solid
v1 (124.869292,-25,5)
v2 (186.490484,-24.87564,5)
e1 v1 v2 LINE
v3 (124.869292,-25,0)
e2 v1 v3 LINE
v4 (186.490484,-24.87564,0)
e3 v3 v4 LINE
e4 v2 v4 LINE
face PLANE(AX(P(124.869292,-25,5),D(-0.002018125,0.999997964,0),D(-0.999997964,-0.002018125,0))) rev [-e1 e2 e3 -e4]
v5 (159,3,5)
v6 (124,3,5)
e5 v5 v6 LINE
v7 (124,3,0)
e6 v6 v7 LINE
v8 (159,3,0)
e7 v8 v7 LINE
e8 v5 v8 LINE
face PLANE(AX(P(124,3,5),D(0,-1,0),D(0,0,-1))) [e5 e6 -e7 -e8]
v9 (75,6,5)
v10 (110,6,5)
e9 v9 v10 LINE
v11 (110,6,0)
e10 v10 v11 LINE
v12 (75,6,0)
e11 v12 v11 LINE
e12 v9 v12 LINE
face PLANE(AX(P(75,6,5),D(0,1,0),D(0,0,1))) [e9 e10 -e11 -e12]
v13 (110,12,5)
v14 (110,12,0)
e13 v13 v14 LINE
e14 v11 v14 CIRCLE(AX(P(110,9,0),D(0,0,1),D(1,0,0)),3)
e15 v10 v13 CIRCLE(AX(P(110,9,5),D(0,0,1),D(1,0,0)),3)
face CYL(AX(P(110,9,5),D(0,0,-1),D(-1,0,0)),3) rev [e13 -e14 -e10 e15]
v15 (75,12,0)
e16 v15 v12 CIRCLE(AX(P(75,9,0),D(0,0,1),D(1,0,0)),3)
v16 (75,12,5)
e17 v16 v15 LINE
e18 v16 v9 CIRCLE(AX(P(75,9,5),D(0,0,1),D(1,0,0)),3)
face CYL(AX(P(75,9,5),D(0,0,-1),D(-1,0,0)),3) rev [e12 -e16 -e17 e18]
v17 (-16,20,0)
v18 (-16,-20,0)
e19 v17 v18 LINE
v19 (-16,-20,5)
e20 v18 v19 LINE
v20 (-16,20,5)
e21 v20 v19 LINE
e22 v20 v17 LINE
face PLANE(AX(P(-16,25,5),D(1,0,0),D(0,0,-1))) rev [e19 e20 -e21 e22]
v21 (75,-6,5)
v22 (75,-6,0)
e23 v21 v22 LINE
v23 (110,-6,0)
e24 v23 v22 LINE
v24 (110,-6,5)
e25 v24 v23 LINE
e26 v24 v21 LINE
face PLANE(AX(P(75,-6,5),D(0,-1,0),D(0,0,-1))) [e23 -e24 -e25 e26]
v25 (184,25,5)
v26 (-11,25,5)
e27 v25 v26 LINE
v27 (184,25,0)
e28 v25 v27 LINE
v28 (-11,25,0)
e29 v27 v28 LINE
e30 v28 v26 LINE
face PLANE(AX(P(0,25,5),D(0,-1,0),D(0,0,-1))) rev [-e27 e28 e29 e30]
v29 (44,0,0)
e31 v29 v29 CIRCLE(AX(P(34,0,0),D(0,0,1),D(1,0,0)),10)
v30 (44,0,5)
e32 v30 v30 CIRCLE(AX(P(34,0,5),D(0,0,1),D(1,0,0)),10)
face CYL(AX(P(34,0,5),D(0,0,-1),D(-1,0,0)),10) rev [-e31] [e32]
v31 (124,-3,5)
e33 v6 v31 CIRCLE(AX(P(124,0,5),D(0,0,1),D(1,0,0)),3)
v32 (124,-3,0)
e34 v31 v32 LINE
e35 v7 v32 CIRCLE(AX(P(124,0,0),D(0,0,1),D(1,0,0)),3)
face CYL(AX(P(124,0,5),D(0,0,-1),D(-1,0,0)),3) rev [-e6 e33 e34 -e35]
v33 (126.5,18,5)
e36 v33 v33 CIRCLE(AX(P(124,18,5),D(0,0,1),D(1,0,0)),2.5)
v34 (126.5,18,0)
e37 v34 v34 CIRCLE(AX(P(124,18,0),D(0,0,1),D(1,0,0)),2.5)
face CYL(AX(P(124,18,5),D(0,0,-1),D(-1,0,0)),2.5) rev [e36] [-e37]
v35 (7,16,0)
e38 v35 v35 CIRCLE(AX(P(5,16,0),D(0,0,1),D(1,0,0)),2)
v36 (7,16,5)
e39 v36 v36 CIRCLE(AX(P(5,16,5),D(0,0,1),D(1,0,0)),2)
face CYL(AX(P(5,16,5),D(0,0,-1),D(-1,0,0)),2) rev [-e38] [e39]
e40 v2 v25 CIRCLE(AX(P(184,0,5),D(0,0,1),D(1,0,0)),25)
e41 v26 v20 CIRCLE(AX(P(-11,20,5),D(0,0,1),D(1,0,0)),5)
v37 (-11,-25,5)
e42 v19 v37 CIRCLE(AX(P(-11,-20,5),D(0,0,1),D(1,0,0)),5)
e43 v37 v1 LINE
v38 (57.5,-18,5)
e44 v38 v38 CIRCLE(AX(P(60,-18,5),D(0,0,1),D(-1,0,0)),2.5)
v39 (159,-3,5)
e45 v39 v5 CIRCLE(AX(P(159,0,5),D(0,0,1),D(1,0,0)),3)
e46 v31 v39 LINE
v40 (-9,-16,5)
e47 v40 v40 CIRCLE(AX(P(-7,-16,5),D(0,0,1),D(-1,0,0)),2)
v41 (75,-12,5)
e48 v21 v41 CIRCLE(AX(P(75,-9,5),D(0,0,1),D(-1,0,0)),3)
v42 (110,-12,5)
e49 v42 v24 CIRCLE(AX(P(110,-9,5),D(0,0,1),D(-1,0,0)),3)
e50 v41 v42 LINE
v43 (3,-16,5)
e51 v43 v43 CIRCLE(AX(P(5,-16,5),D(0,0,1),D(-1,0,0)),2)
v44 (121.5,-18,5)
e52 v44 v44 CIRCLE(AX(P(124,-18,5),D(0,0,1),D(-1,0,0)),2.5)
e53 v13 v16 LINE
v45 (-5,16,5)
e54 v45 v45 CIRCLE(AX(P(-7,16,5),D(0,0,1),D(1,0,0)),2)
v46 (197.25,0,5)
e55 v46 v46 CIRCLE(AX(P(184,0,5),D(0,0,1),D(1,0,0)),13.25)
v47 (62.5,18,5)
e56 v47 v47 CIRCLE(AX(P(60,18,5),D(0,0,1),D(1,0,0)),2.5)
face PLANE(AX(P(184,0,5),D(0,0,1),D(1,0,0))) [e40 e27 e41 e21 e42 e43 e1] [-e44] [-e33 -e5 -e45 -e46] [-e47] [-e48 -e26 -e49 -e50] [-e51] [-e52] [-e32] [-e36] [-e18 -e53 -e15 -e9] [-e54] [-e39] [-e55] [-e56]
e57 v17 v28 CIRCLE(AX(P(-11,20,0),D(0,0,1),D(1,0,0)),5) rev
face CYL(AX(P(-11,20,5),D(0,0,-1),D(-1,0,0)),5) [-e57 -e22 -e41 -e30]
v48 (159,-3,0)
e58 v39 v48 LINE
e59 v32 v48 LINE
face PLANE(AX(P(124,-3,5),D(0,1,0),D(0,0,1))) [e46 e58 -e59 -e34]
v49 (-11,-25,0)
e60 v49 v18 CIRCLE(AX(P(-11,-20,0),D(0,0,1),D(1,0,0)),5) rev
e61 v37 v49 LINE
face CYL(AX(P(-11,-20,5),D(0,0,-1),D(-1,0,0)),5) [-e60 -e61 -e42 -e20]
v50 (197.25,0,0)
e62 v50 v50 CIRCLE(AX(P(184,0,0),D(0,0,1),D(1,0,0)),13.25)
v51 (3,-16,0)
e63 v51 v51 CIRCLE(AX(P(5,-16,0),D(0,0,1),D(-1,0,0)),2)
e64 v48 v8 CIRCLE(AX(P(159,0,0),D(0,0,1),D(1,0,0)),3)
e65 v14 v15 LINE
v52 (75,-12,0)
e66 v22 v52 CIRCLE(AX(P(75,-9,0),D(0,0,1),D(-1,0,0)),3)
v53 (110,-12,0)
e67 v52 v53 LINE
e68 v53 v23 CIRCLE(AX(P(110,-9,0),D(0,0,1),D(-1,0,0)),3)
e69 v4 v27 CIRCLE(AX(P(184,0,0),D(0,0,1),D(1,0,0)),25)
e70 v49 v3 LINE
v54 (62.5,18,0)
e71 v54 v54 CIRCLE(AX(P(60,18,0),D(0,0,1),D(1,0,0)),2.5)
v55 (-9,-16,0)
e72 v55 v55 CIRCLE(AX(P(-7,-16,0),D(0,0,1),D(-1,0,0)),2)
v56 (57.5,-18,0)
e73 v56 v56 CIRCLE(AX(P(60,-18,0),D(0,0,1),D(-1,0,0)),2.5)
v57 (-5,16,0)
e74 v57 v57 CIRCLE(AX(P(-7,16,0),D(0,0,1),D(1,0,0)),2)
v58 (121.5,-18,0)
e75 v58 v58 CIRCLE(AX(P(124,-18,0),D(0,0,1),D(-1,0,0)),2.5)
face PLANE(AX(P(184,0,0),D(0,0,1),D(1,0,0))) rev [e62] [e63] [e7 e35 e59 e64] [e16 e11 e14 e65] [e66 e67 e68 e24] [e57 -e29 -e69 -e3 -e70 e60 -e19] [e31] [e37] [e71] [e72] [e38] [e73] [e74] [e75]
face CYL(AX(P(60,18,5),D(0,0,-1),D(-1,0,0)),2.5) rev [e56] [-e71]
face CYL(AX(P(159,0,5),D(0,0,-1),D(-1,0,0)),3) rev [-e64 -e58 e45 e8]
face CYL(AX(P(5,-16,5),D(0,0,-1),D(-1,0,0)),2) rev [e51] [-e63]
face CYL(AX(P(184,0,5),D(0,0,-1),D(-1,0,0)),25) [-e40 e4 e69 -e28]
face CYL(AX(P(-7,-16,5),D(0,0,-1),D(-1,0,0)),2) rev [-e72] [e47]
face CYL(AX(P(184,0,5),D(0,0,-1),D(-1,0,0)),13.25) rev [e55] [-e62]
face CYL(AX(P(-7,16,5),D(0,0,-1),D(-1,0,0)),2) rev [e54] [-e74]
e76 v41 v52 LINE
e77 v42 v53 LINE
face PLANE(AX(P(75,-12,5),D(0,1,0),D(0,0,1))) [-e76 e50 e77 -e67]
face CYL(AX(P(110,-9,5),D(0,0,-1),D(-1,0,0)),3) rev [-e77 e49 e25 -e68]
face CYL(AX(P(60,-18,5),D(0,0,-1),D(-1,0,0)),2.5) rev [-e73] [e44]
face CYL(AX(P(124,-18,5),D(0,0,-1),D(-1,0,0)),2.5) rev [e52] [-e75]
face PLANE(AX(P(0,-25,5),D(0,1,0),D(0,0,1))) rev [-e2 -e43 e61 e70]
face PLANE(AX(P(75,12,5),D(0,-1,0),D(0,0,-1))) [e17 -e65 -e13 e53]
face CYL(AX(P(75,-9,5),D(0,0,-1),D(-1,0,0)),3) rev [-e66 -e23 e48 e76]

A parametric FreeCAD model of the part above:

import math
import FreeCAD as App
import Part
import Sketcher

V = App.Vector
Q = App.Units.Quantity


def edges_at(feature, points):
    """Names of the edges that pass closest to the given points."""
    edges = feature.Shape.Edges
    near = lambda p: min(range(len(edges)), key=lambda i: edges[i].distToShape(Part.Vertex(*p))[0])
    return sorted({f"Edge{near(p) + 1}" for p in points})

doc = App.newDocument("Part")
params = doc.addObject("Spreadsheet::Sheet", "Params")
for row, (alias, value) in enumerate([
    ("sketch1_diameter", "5 mm"),
    ("sketch1_diameter2", "4 mm"),
    ("sketch1_diameter3", "20 mm"),
    ("sketch1_radius", "25 mm"),
    ("sketch1_radius2", "3 mm"),
    ("pad1_length", "5 mm"),
    ("fillet_radius", "5 mm"),
], start=1):
    params.set(f"A{row}", alias)
    params.set(f"B{row}", "=" + value)
    params.setAlias(f"B{row}", alias)

body = doc.addObject("PartDesign::Body", "Body")

sketch1 = doc.addObject("Sketcher::SketchObject", "Sketch")
body.addObject(sketch1)
sketch1.AttachmentSupport = (doc.XY_Plane, [""])
sketch1.MapMode = "FlatFace"
sketch1.addGeometry([
    Part.ArcOfCircle(Part.Circle(V(184, 0, 0), V(0, 0, 1), 25), math.radians(-84), math.radians(90)),
    Part.LineSegment(V(184, 25, 0), V(-16, 25, 0)),
    Part.LineSegment(V(-16, 25, 0), V(-16, -25, 0)),
    Part.LineSegment(V(-16, -25, 0), V(124.9, -25, 0)),
    Part.LineSegment(V(124.9, -25, 0), V(186.5, -24.9, 0)),
    Part.Circle(V(124, -18, 0), V(0, 0, 1), 2.5),
    Part.Circle(V(60, -18, 0), V(0, 0, 1), 2.5),
    Part.Circle(V(5, -16, 0), V(0, 0, 1), 2),
    Part.Circle(V(-7, -16, 0), V(0, 0, 1), 2),
    Part.ArcOfCircle(Part.Circle(V(75, -9, 0), V(0, 0, 1), 3), math.radians(90), math.radians(270)),
    Part.LineSegment(V(75, -6, 0), V(110, -6, 0)),
    Part.ArcOfCircle(Part.Circle(V(110, -9, 0), V(0, 0, 1), 3), math.radians(-90), math.radians(90)),
    Part.LineSegment(V(110, -12, 0), V(75, -12, 0)),
    Part.Circle(V(184, 0, 0), V(0, 0, 1), 13.2),
    Part.LineSegment(V(124, 3, 0), V(159, 3, 0)),
    Part.ArcOfCircle(Part.Circle(V(159, 0, 0), V(0, 0, 1), 3), math.radians(-90), math.radians(90)),
    Part.LineSegment(V(159, -3, 0), V(124, -3, 0)),
    Part.ArcOfCircle(Part.Circle(V(124, 0, 0), V(0, 0, 1), 3), math.radians(90), math.radians(270)),
    Part.Circle(V(124, 18, 0), V(0, 0, 1), 2.5),
    Part.LineSegment(V(75, 12, 0), V(110, 12, 0)),
    Part.ArcOfCircle(Part.Circle(V(110, 9, 0), V(0, 0, 1), 3), math.radians(-90), math.radians(90)),
    Part.LineSegment(V(110, 6, 0), V(75, 6, 0)),
    Part.ArcOfCircle(Part.Circle(V(75, 9, 0), V(0, 0, 1), 3), math.radians(90), math.radians(270)),
    Part.Circle(V(34, 0, 0), V(0, 0, 1), 10),
    Part.Circle(V(60, 18, 0), V(0, 0, 1), 2.5),
    Part.Circle(V(5, 16, 0), V(0, 0, 1), 2),
    Part.Circle(V(-7, 16, 0), V(0, 0, 1), 2),
], False)
sketch1.addConstraint([
    Sketcher.Constraint("Tangent", 0, 2, 1, 1),
    Sketcher.Constraint("Coincident", 1, 2, 2, 1),
    Sketcher.Constraint("Coincident", 2, 2, 3, 1),
    Sketcher.Constraint("Coincident", 3, 2, 4, 1),
    Sketcher.Constraint("Coincident", 4, 2, 0, 1),
    Sketcher.Constraint("Tangent", 9, 1, 10, 1),
    Sketcher.Constraint("Tangent", 10, 2, 11, 2),
    Sketcher.Constraint("Tangent", 11, 1, 12, 1),
    Sketcher.Constraint("Tangent", 12, 2, 9, 2),
    Sketcher.Constraint("Tangent", 14, 2, 15, 2),
    Sketcher.Constraint("Tangent", 15, 1, 16, 1),
    Sketcher.Constraint("Tangent", 16, 2, 17, 2),
    Sketcher.Constraint("Tangent", 17, 1, 14, 1),
    Sketcher.Constraint("Tangent", 19, 2, 20, 2),
    Sketcher.Constraint("Tangent", 20, 1, 21, 1),
    Sketcher.Constraint("Tangent", 21, 2, 22, 2),
    Sketcher.Constraint("Tangent", 22, 1, 19, 1),
    Sketcher.Constraint("Horizontal", 1),
    Sketcher.Constraint("Vertical", 2),
    Sketcher.Constraint("Horizontal", 3),
    Sketcher.Constraint("Horizontal", 10),
    Sketcher.Constraint("Horizontal", 12),
    Sketcher.Constraint("Horizontal", 14),
    Sketcher.Constraint("Horizontal", 16),
    Sketcher.Constraint("Horizontal", 19),
    Sketcher.Constraint("Horizontal", 21),
    Sketcher.Constraint("Coincident", 13, 3, 0, 3),
    Sketcher.Constraint("Equal", 5, 6),
    Sketcher.Constraint("Equal", 7, 8),
    Sketcher.Constraint("Equal", 11, 15),
    Sketcher.Constraint("Equal", 6, 18),
    Sketcher.Constraint("Equal", 17, 20),
    Sketcher.Constraint("Equal", 18, 24),
    Sketcher.Constraint("Equal", 8, 25),
    Sketcher.Constraint("Equal", 25, 26),
    Sketcher.Constraint("Symmetric", 5, 3, 18, 3, -1),
    Sketcher.Constraint("Symmetric", 11, 3, 20, 3, -1),
    Sketcher.Constraint("Symmetric", 6, 3, 24, 3, -1),
    Sketcher.Constraint("Symmetric", 7, 3, 25, 3, -1),
    Sketcher.Constraint("Symmetric", 8, 3, 26, 3, -1),
    Sketcher.Constraint("PointOnObject", 0, 3, -1),
    Sketcher.Constraint("PointOnObject", 15, 3, -1),
    Sketcher.Constraint("PointOnObject", 23, 3, -1),
    Sketcher.Constraint("Horizontal", 5, 3, 6, 3),
    Sketcher.Constraint("Horizontal", 7, 3, 8, 3),
    Sketcher.Constraint("Vertical", 5, 3, 17, 3),
    Sketcher.Constraint("Vertical", 9, 3, 22, 3),
    Sketcher.Constraint("Equal", 12, 14),
    Sketcher.Constraint("Diameter", 5, Q("5 mm")),
    Sketcher.Constraint("Diameter", 7, Q("4 mm")),
    Sketcher.Constraint("Diameter", 23, Q("20 mm")),
    Sketcher.Constraint("Radius", 0, Q("25 mm")),
    Sketcher.Constraint("Radius", 9, Q("3 mm")),
    Sketcher.Constraint("Diameter", 13, Q("26.5 mm")),
    Sketcher.Constraint("DistanceX", 1, 2, 1, 1, Q("200 mm")),
    Sketcher.Constraint("DistanceX", 10, 1, 10, 2, Q("35 mm")),
    Sketcher.Constraint("DistanceY", 2, 2, 2, 1, Q("50 mm")),
    Sketcher.Constraint("DistanceX", -1, 1, 0, 3, Q("184 mm")),
    Sketcher.Constraint("DistanceX", -1, 1, 5, 3, Q("124 mm")),
    Sketcher.Constraint("DistanceY", 5, 3, -1, 1, Q("18 mm")),
    Sketcher.Constraint("DistanceX", -1, 1, 6, 3, Q("60 mm")),
    Sketcher.Constraint("DistanceX", -1, 1, 7, 3, Q("5 mm")),
    Sketcher.Constraint("DistanceY", 7, 3, -1, 1, Q("16 mm")),
    Sketcher.Constraint("DistanceX", 8, 3, -1, 1, Q("7 mm")),
    Sketcher.Constraint("DistanceX", -1, 1, 9, 3, Q("75 mm")),
    Sketcher.Constraint("DistanceY", 9, 3, -1, 1, Q("9 mm")),
    Sketcher.Constraint("DistanceX", -1, 1, 23, 3, Q("34 mm")),
    Sketcher.Constraint("DistanceX", 3, 1, 3, 2, Q("140.869292 mm")),
    Sketcher.Constraint("DistanceY", 4, 2, -1, 1, Q("24.87564 mm")),
])
sketch1.setExpression("Constraints[48]", "Params.sketch1_diameter")
sketch1.setExpression("Constraints[49]", "Params.sketch1_diameter2")
sketch1.setExpression("Constraints[50]", "Params.sketch1_diameter3")
sketch1.setExpression("Constraints[51]", "Params.sketch1_radius")
sketch1.setExpression("Constraints[52]", "Params.sketch1_radius2")
pad1 = doc.addObject("PartDesign::Pad", "Pad")
body.addObject(pad1)
pad1.Profile = sketch1
pad1.setExpression("Length", "Params.pad1_length")
doc.recompute()

fillet = doc.addObject("PartDesign::Fillet", "Fillet")
body.addObject(fillet)
fillet.Base = (pad1, edges_at(pad1, [(-16, -25, 2.5), (-16, 25, 2.5)]))
fillet.setExpression("Radius", "Params.fillet_radius")

doc.recompute()
